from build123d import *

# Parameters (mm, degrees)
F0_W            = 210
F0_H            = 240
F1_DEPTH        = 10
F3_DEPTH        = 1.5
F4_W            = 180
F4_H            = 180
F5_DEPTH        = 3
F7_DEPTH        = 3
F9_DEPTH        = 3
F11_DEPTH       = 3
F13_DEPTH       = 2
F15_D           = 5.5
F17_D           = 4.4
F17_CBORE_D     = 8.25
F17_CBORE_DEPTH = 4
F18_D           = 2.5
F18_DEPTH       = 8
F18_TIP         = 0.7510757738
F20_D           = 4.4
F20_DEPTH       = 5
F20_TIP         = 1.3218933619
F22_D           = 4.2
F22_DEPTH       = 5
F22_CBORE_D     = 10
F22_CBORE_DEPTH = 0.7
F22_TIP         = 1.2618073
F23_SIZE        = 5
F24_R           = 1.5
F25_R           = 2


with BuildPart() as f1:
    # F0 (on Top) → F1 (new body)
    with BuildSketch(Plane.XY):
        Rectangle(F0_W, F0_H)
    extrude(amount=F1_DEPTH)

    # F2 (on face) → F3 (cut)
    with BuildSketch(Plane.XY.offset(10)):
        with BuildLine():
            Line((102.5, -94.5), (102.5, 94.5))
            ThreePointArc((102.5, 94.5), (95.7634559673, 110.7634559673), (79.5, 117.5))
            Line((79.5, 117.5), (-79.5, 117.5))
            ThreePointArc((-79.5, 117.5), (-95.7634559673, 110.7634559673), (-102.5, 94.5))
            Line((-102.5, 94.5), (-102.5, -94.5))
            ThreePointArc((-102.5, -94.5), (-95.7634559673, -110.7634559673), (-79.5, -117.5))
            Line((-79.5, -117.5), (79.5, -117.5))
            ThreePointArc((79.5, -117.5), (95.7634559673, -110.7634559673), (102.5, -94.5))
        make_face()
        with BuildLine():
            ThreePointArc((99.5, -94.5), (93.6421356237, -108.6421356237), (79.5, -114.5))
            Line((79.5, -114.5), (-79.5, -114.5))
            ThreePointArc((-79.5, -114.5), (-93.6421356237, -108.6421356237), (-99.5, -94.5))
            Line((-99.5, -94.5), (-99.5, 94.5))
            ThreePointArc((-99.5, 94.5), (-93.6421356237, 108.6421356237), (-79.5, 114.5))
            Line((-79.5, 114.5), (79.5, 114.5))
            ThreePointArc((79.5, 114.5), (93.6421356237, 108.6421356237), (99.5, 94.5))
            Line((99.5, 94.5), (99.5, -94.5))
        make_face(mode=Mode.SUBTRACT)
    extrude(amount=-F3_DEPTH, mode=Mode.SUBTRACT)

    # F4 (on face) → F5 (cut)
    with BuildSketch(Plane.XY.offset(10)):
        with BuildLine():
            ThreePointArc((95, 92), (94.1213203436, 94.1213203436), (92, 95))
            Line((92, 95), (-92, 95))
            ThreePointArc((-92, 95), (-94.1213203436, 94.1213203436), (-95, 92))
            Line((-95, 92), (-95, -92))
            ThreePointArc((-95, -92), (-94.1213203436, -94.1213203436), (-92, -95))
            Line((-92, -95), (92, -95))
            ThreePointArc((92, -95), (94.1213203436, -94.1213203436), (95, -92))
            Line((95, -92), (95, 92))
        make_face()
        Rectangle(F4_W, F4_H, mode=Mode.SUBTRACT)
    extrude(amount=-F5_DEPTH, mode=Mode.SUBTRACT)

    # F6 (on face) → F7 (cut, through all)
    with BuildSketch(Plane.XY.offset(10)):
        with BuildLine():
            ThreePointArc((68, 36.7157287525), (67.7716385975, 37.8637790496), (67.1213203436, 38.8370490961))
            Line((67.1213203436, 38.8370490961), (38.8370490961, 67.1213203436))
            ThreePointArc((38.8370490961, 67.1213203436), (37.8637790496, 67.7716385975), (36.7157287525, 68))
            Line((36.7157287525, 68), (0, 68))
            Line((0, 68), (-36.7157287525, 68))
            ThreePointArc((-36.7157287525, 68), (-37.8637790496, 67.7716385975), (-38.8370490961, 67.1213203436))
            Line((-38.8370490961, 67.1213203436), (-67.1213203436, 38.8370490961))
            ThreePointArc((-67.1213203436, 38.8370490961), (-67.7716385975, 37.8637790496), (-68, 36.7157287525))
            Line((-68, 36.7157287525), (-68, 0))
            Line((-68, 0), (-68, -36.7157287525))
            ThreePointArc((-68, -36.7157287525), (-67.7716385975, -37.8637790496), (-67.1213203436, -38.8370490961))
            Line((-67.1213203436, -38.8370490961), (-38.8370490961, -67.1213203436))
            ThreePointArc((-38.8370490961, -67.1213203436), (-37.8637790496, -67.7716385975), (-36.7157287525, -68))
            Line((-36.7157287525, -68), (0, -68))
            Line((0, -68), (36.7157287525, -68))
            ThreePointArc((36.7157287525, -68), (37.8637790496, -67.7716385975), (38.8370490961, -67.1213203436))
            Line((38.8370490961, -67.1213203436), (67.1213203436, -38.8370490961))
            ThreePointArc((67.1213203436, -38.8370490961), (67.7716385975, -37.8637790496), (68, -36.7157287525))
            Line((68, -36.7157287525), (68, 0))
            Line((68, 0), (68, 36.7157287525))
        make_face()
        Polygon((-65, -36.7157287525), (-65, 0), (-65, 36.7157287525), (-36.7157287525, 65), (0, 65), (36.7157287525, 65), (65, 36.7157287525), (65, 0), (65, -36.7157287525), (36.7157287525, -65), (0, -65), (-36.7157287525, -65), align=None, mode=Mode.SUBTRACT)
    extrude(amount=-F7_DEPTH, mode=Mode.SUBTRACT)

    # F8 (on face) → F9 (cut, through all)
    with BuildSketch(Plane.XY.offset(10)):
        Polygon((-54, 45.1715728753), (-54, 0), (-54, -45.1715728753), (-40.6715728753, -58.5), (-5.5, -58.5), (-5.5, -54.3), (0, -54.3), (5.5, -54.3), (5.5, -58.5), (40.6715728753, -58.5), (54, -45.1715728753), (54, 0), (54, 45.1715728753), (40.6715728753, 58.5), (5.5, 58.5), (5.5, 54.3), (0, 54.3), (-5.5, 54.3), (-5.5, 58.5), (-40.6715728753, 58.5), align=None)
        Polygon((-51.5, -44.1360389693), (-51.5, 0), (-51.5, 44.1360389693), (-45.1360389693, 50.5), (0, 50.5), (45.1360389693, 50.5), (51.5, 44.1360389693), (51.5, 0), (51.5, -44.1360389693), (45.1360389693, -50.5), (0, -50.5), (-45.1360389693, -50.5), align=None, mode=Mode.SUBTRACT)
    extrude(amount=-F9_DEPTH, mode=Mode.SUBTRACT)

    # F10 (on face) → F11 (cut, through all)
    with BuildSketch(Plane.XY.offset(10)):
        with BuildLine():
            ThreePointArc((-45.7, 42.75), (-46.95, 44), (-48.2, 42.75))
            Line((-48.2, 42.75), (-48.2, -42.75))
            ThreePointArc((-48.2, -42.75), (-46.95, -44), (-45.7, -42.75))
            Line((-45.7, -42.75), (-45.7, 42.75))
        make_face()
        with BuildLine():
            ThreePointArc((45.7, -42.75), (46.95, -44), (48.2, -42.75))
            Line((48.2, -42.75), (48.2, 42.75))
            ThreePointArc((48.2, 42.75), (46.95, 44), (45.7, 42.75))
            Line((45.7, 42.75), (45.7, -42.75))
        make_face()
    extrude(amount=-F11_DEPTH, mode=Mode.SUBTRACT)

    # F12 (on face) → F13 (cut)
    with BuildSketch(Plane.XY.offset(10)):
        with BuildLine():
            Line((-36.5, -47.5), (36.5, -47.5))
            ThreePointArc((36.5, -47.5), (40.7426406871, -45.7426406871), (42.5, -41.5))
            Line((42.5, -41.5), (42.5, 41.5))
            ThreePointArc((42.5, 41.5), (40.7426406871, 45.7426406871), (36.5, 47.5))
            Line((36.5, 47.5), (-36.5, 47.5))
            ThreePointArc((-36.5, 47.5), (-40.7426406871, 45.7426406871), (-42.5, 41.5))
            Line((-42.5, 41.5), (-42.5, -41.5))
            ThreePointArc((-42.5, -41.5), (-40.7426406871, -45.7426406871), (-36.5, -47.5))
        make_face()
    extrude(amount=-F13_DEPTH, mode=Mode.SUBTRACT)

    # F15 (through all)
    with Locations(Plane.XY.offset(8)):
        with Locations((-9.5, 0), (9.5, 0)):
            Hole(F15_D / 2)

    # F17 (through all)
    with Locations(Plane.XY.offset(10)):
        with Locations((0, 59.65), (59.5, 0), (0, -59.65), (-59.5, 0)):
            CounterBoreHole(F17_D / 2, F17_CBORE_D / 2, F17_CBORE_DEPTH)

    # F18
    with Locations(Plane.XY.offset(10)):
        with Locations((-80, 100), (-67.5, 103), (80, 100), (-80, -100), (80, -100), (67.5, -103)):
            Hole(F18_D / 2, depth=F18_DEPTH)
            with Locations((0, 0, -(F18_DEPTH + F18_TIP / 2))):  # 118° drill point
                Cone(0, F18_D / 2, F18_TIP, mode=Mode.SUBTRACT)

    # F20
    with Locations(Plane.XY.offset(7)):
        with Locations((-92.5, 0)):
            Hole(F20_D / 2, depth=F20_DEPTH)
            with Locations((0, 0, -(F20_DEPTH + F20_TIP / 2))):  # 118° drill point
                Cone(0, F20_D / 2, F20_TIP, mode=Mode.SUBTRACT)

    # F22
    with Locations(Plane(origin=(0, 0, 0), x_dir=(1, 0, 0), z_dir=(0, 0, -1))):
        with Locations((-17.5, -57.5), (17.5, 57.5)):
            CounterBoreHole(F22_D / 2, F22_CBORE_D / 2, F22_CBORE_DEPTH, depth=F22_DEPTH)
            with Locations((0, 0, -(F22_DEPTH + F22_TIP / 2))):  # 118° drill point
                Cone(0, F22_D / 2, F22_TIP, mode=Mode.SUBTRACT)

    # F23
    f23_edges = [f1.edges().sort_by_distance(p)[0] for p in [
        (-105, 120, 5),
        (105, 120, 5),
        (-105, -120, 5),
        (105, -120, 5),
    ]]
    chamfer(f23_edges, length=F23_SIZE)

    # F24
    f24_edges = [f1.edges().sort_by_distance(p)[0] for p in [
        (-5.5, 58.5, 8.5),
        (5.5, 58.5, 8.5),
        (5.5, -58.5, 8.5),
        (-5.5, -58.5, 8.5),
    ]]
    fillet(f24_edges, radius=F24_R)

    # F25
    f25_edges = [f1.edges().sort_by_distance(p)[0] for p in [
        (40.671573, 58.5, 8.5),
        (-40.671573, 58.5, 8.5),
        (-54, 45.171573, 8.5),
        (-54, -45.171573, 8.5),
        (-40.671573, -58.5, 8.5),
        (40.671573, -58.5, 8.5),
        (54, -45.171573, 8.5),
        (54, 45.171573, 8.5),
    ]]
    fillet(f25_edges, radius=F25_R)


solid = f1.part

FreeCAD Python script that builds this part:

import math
import FreeCAD as App
import Part
import Sketcher


def edges_at(feature, points):
    """Names of the edges that pass closest to the given points."""
    edges = feature.Shape.Edges
    near = lambda p: min(range(len(edges)), key=lambda i: edges[i].distToShape(Part.Vertex(*p))[0])
    return sorted({f"Edge{near(p) + 1}" for p in points})

doc = App.newDocument("Part")
params = doc.addObject("Spreadsheet::Sheet", "Params")
for row, (alias, value) in enumerate([
    ("sketch1_width", "210 mm"),
    ("sketch1_height", "240 mm"),
    ("pad1_length", "10 mm"),
    ("sketch2_radius", "23 mm"),
    ("sketch2_radius2", "20 mm"),
    ("sketch2_width", "159 mm"),
    ("sketch2_height", "189 mm"),
    ("pocket1_length", "1.5 mm"),
    ("sketch3_radius", "3 mm"),
    ("sketch3_width", "184 mm"),
    ("sketch3_width2", "180 mm"),
    ("pocket2_length", "3 mm"),
    ("sketch4_radius", "3 mm"),
    ("sketch4_length", "40 mm"),
    ("pocket3_length", "3 mm"),
    ("sketch5_width", "11 mm"),
    ("sketch5_length", "9 mm"),
    ("sketch5_height", "4.2 mm"),
    ("pocket4_length", "3 mm"),
    ("sketch6_radius", "1.25 mm"),
    ("sketch6_height", "85.5 mm"),
    ("pocket5_length", "3 mm"),
    ("sketch7_radius", "6 mm"),
    ("sketch7_width", "73 mm"),
    ("sketch7_height", "83 mm"),
    ("pocket6_length", "2 mm"),
    ("sketch8_diameter", "5.5 mm"),
    ("hole_diameter", "5.5 mm"),
    ("sketch9_diameter", "4.4 mm"),
    ("hole2_diameter", "4.4 mm"),
    ("hole2_cbore_diameter", "8.25 mm"),
    ("hole2_cbore_depth", "4 mm"),
    ("sketch10_diameter", "2.5 mm"),
    ("hole3_diameter", "2.5 mm"),
    ("hole3_depth", "8 mm"),
    ("sketch11_diameter", "4.4 mm"),
    ("hole4_diameter", "4.4 mm"),
    ("hole4_depth", "5 mm"),
    ("sketch12_diameter", "4.2 mm"),
    ("hole5_diameter", "4.2 mm"),
    ("hole5_depth", "5 mm"),
    ("hole5_cbore_diameter", "10 mm"),
    ("hole5_cbore_depth", "0.7 mm"),
    ("chamfer_size", "5 mm"),
    ("fillet_radius", "1.5 mm"),
    ("fillet2_radius", "2 mm"),
], start=1):
    params.set(f"A{row}", alias)
    params.set(f"B{row}", "=" + value)
    params.setAlias(f"B{row}", alias)

body = doc.addObject("PartDesign::Body", "Body")

sketch1 = body.newObject("Sketcher::SketchObject", "Sketch")
sketch1.AttachmentSupport = (doc.getObject("XY_Plane"), [""])
sketch1.MapMode = "FlatFace"
sketch1.addGeometry(Part.LineSegment(App.Vector(-105, 120, 0), App.Vector(-105, -120, 0)), False)
sketch1.addGeometry(Part.LineSegment(App.Vector(-105, -120, 0), App.Vector(105, -120, 0)), False)
sketch1.addGeometry(Part.LineSegment(App.Vector(105, -120, 0), App.Vector(105, 120, 0)), False)
sketch1.addGeometry(Part.LineSegment(App.Vector(105, 120, 0), App.Vector(-105, 120, 0)), False)
sketch1.addConstraint(Sketcher.Constraint("Coincident", 0, 2, 1, 1))
sketch1.addConstraint(Sketcher.Constraint("Coincident", 1, 2, 2, 1))
sketch1.addConstraint(Sketcher.Constraint("Coincident", 2, 2, 3, 1))
sketch1.addConstraint(Sketcher.Constraint("Coincident", 3, 2, 0, 1))
sketch1.addConstraint(Sketcher.Constraint("Vertical", 0))
sketch1.addConstraint(Sketcher.Constraint("Horizontal", 1))
sketch1.addConstraint(Sketcher.Constraint("Vertical", 2))
sketch1.addConstraint(Sketcher.Constraint("Horizontal", 3))
sketch1.addConstraint(Sketcher.Constraint("Symmetric", 0, 2, 2, 2, -1, 1))
sketch1.addConstraint(Sketcher.Constraint("DistanceX", 1, 1, 1, 2, 210.0))
sketch1.addConstraint(Sketcher.Constraint("DistanceY", 0, 2, 0, 1, 240.0))
sketch1.setExpression("Constraints[9]", "Params.sketch1_width")
sketch1.setExpression("Constraints[10]", "Params.sketch1_height")
pad1 = body.newObject("PartDesign::Pad", "Pad")
pad1.Profile = sketch1
pad1.setExpression("Length", "Params.pad1_length")

sketch2 = body.newObject("Sketcher::SketchObject", "Sketch001")
sketch2.AttachmentSupport = (doc.getObject("XY_Plane"), [""])
sketch2.MapMode = "FlatFace"
sketch2.AttachmentOffset = App.Placement(App.Vector(0, 0, 10), App.Rotation())
sketch2.addGeometry(Part.LineSegment(App.Vector(102, -94, 0), App.Vector(102, 94, 0)), False)
sketch2.addGeometry(Part.ArcOfCircle(Part.Circle(App.Vector(80, 94, 0), App.Vector(0, 0, 1), 23), math.radians(0), math.radians(90)), False)
sketch2.addGeometry(Part.LineSegment(App.Vector(80, 118, 0), App.Vector(-80, 118, 0)), False)
sketch2.addGeometry(Part.ArcOfCircle(Part.Circle(App.Vector(-80, 94, 0), App.Vector(0, 0, 1), 23), math.radians(90), math.radians(180)), False)
sketch2.addGeometry(Part.LineSegment(App.Vector(-102, 94, 0), App.Vector(-102, -94, 0)), False)
sketch2.addGeometry(Part.ArcOfCircle(Part.Circle(App.Vector(-80, -94, 0), App.Vector(0, 0, 1), 23), math.radians(180), math.radians(270)), False)
sketch2.addGeometry(Part.LineSegment(App.Vector(-80, -118, 0), App.Vector(80, -118, 0)), False)
sketch2.addGeometry(Part.ArcOfCircle(Part.Circle(App.Vector(80, -94, 0), App.Vector(0, 0, 1), 23), math.radians(-90), math.radians(0)), False)
sketch2.addGeometry(Part.LineSegment(App.Vector(100, 94, 0), App.Vector(100, -94, 0)), False)
sketch2.addGeometry(Part.ArcOfCircle(Part.Circle(App.Vector(80, -94, 0), App.Vector(0, 0, 1), 20), math.radians(-90), math.radians(0)), False)
sketch2.addGeometry(Part.LineSegment(App.Vector(80, -114, 0), App.Vector(-80, -114, 0)), False)
sketch2.addGeometry(Part.ArcOfCircle(Part.Circle(App.Vector(-80, -94, 0), App.Vector(0, 0, 1), 20), math.radians(180), math.radians(270)), False)
sketch2.addGeometry(Part.LineSegment(App.Vector(-100, -94, 0), App.Vector(-100, 94, 0)), False)
sketch2.addGeometry(Part.ArcOfCircle(Part.Circle(App.Vector(-80, 94, 0), App.Vector(0, 0, 1), 20), math.radians(90), math.radians(180)), False)
sketch2.addGeometry(Part.LineSegment(App.Vector(-80, 114, 0), App.Vector(80, 114, 0)), False)
sketch2.addGeometry(Part.ArcOfCircle(Part.Circle(App.Vector(80, 94, 0), App.Vector(0, 0, 1), 20), math.radians(0), math.radians(90)), False)
sketch2.addConstraint(Sketcher.Constraint("Tangent", 0, 2, 1, 1))
sketch2.addConstraint(Sketcher.Constraint("Tangent", 1, 2, 2, 1))
sketch2.addConstraint(Sketcher.Constraint("Tangent", 2, 2, 3, 1))
sketch2.addConstraint(Sketcher.Constraint("Tangent", 3, 2, 4, 1))
sketch2.addConstraint(Sketcher.Constraint("Tangent", 4, 2, 5, 1))
sketch2.addConstraint(Sketcher.Constraint("Tangent", 5, 2, 6, 1))
sketch2.addConstraint(Sketcher.Constraint("Tangent", 6, 2, 7, 1))
sketch2.addConstraint(Sketcher.Constraint("Tangent", 7, 2, 0, 1))
sketch2.addConstraint(Sketcher.Constraint("Tangent", 8, 2, 9, 2))
sketch2.addConstraint(Sketcher.Constraint("Tangent", 9, 1, 10, 1))
sketch2.addConstraint(Sketcher.Constraint("Tangent", 10, 2, 11, 2))
sketch2.addConstraint(Sketcher.Constraint("Tangent", 11, 1, 12, 1))
sketch2.addConstraint(Sketcher.Constraint("Tangent", 12, 2, 13, 2))
sketch2.addConstraint(Sketcher.Constraint("Tangent", 13, 1, 14, 1))
sketch2.addConstraint(Sketcher.Constraint("Tangent", 14, 2, 15, 2))
sketch2.addConstraint(Sketcher.Constraint("Tangent", 15, 1, 8, 1))
sketch2.addConstraint(Sketcher.Constraint("Vertical", 0))
sketch2.addConstraint(Sketcher.Constraint("Horizontal", 2))
sketch2.addConstraint(Sketcher.Constraint("Vertical", 4))
sketch2.addConstraint(Sketcher.Constraint("Horizontal", 6))
sketch2.addConstraint(Sketcher.Constraint("Vertical", 8))
sketch2.addConstraint(Sketcher.Constraint("Horizontal", 10))
sketch2.addConstraint(Sketcher.Constraint("Vertical", 12))
sketch2.addConstraint(Sketcher.Constraint("Horizontal", 14))
sketch2.addConstraint(Sketcher.Constraint("Coincident", 9, 3, 7, 3))
sketch2.addConstraint(Sketcher.Constraint("Coincident", 11, 3, 5, 3))
sketch2.addConstraint(Sketcher.Constraint("Coincident", 13, 3, 3, 3))
sketch2.addConstraint(Sketcher.Constraint("Equal", 1, 3))
sketch2.addConstraint(Sketcher.Constraint("Equal", 3, 5))
sketch2.addConstraint(Sketcher.Constraint("Equal", 5, 7))
sketch2.addConstraint(Sketcher.Constraint("Equal", 13, 15))
sketch2.addConstraint(Sketcher.Constraint("Symmetric", 1, 3, 5, 3, -1, 1))
sketch2.addConstraint(Sketcher.Constraint("Radius", 1, 23.0))
sketch2.addConstraint(Sketcher.Constraint("Radius", 9, 20.0))
sketch2.addConstraint(Sketcher.Constraint("DistanceX", 2, 2, 2, 1, 159.0))
sketch2.addConstraint(Sketcher.Constraint("DistanceY", 0, 1, 0, 2, 189.0))
sketch2.setExpression("Constraints[32]", "Params.sketch2_radius")
sketch2.setExpression("Constraints[33]", "Params.sketch2_radius2")
sketch2.setExpression("Constraints[34]", "Params.sketch2_width")
sketch2.setExpression("Constraints[35]", "Params.sketch2_height")
pocket1 = body.newObject("PartDesign::Pocket", "Pocket")
pocket1.Profile = sketch2
pocket1.setExpression("Length", "Params.pocket1_length")

sketch3 = body.newObject("Sketcher::SketchObject", "Sketch002")
sketch3.AttachmentSupport = (doc.getObject("XY_Plane"), [""])
sketch3.MapMode = "FlatFace"
sketch3.AttachmentOffset = App.Placement(App.Vector(0, 0, 10), App.Rotation())
sketch3.addGeometry(Part.ArcOfCircle(Part.Circle(App.Vector(92, 92, 0), App.Vector(0, 0, 1), 3), math.radians(0), math.radians(90)), False)
sketch3.addGeometry(Part.LineSegment(App.Vector(92, 95, 0), App.Vector(-92, 95, 0)), False)
sketch3.addGeometry(Part.ArcOfCircle(Part.Circle(App.Vector(-92, 92, 0), App.Vector(0, 0, 1), 3), math.radians(90), math.radians(180)), False)
sketch3.addGeometry(Part.LineSegment(App.Vector(-95, 92, 0), App.Vector(-95, -92, 0)), False)
sketch3.addGeometry(Part.ArcOfCircle(Part.Circle(App.Vector(-92, -92, 0), App.Vector(0, 0, 1), 3), math.radians(180), math.radians(270)), False)
sketch3.addGeometry(Part.LineSegment(App.Vector(-92, -95, 0), App.Vector(92, -95, 0)), False)
sketch3.addGeometry(Part.ArcOfCircle(Part.Circle(App.Vector(92, -92, 0), App.Vector(0, 0, 1), 3), math.radians(-90), math.radians(0)), False)
sketch3.addGeometry(Part.LineSegment(App.Vector(95, -92, 0), App.Vector(95, 92, 0)), False)
sketch3.addGeometry(Part.LineSegment(App.Vector(90, -90, 0), App.Vector(-90, -90, 0)), False)
sketch3.addGeometry(Part.LineSegment(App.Vector(-90, -90, 0), App.Vector(-90, 90, 0)), False)
sketch3.addGeometry(Part.LineSegment(App.Vector(-90, 90, 0), App.Vector(90, 90, 0)), False)
sketch3.addGeometry(Part.LineSegment(App.Vector(90, 90, 0), App.Vector(90, -90, 0)), False)
sketch3.addConstraint(Sketcher.Constraint("Tangent", 0, 2, 1, 1))
sketch3.addConstraint(Sketcher.Constraint("Tangent", 1, 2, 2, 1))
sketch3.addConstraint(Sketcher.Constraint("Tangent", 2, 2, 3, 1))
sketch3.addConstraint(Sketcher.Constraint("Tangent", 3, 2, 4, 1))
sketch3.addConstraint(Sketcher.Constraint("Tangent", 4, 2, 5, 1))
sketch3.addConstraint(Sketcher.Constraint("Tangent", 5, 2, 6, 1))
sketch3.addConstraint(Sketcher.Constraint("Tangent", 6, 2, 7, 1))
sketch3.addConstraint(Sketcher.Constraint("Tangent", 7, 2, 0, 1))
sketch3.addConstraint(Sketcher.Constraint("Coincident", 8, 2, 9, 1))
sketch3.addConstraint(Sketcher.Constraint("Coincident", 9, 2, 10, 1))
sketch3.addConstraint(Sketcher.Constraint("Coincident", 10, 2, 11, 1))
sketch3.addConstraint(Sketcher.Constraint("Coincident", 11, 2, 8, 1))
sketch3.addConstraint(Sketcher.Constraint("Horizontal", 1))
sketch3.addConstraint(Sketcher.Constraint("Vertical", 3))
sketch3.addConstraint(Sketcher.Constraint("Horizontal", 5))
sketch3.addConstraint(Sketcher.Constraint("Vertical", 7))
sketch3.addConstraint(Sketcher.Constraint("Horizontal", 8))
sketch3.addConstraint(Sketcher.Constraint("Vertical", 9))
sketch3.addConstraint(Sketcher.Constraint("Horizontal", 10))
sketch3.addConstraint(Sketcher.Constraint("Vertical", 11))
sketch3.addConstraint(Sketcher.Constraint("Equal", 0, 2))
sketch3.addConstraint(Sketcher.Constraint("Equal", 2, 4))
sketch3.addConstraint(Sketcher.Constraint("Equal", 4, 6))
sketch3.addConstraint(Sketcher.Constraint("Symmetric", 0, 3, 4, 3, -1, 1))
sketch3.addConstraint(Sketcher.Constraint("Symmetric", 8, 2, 10, 2, -1, 1))
sketch3.addConstraint(Sketcher.Constraint("Equal", 5, 3))
sketch3.addConstraint(Sketcher.Constraint("Equal", 10, 9))
sketch3.addConstraint(Sketcher.Constraint("Radius", 0, 3.0))
sketch3.addConstraint(Sketcher.Constraint("DistanceX", 1, 2, 1, 1, 184.0))
sketch3.addConstraint(Sketcher.Constraint("DistanceX", 8, 2, 8, 1, 180.0))
sketch3.setExpression("Constraints[27]", "Params.sketch3_radius")
sketch3.setExpression("Constraints[28]", "Params.sketch3_width")
sketch3.setExpression("Constraints[29]", "Params.sketch3_width2")
pocket2 = body.newObject("PartDesign::Pocket", "Pocket001")
pocket2.Profile = sketch3
pocket2.setExpression("Length", "Params.pocket2_length")

sketch4 = body.newObject("Sketcher::SketchObject", "Sketch003")
sketch4.AttachmentSupport = (doc.getObject("XY_Plane"), [""])
sketch4.MapMode = "FlatFace"
sketch4.AttachmentOffset = App.Placement(App.Vector(0, 0, 10), App.Rotation())
sketch4.addGeometry(Part.ArcOfCircle(Part.Circle(App.Vector(65, 36.7, 0), App.Vector(0, 0, 1), 3), math.radians(0), math.radians(45)), False)
sketch4.addGeometry(Part.LineSegment(App.Vector(67.1, 38.8, 0), App.Vector(38.8, 67.1, 0)), False)
sketch4.addGeometry(Part.ArcOfCircle(Part.Circle(App.Vector(36.7, 65, 0), App.Vector(0, 0, 1), 3), math.radians(45), math.radians(90)), False)
sketch4.addGeometry(Part.LineSegment(App.Vector(36.7, 68, 0), App.Vector(-36.7, 68, 0)), False)
sketch4.addGeometry(Part.ArcOfCircle(Part.Circle(App.Vector(-36.7, 65, 0), App.Vector(0, 0, 1), 3), math.radians(90), math.radians(135)), False)
sketch4.addGeometry(Part.LineSegment(App.Vector(-38.8, 67.1, 0), App.Vector(-67.1, 38.8, 0)), False)
sketch4.addGeometry(Part.ArcOfCircle(Part.Circle(App.Vector(-65, 36.7, 0), App.Vector(0, 0, 1), 3), math.radians(135), math.radians(180)), False)
sketch4.addGeometry(Part.LineSegment(App.Vector(-68, 36.7, 0), App.Vector(-68, -36.7, 0)), False)
sketch4.addGeometry(Part.ArcOfCircle(Part.Circle(App.Vector(-65, -36.7, 0), App.Vector(0, 0, 1), 3), math.radians(180), math.radians(225)), False)
sketch4.addGeometry(Part.LineSegment(App.Vector(-67.1, -38.8, 0), App.Vector(-38.8, -67.1, 0)), False)
sketch4.addGeometry(Part.ArcOfCircle(Part.Circle(App.Vector(-36.7, -65, 0), App.Vector(0, 0, 1), 3), math.radians(-135), math.radians(-90)), False)
sketch4.addGeometry(Part.LineSegment(App.Vector(-36.7, -68, 0), App.Vector(36.7, -68, 0)), False)
sketch4.addGeometry(Part.ArcOfCircle(Part.Circle(App.Vector(36.7, -65, 0), App.Vector(0, 0, 1), 3), math.radians(-90), math.radians(-45)), False)
sketch4.addGeometry(Part.LineSegment(App.Vector(38.8, -67.1, 0), App.Vector(67.1, -38.8, 0)), False)
sketch4.addGeometry(Part.ArcOfCircle(Part.Circle(App.Vector(65, -36.7, 0), App.Vector(0, 0, 1), 3), math.radians(-45), math.radians(0)), False)
sketch4.addGeometry(Part.LineSegment(App.Vector(68, -36.7, 0), App.Vector(68, 36.7, 0)), False)
sketch4.addGeometry(Part.LineSegment(App.Vector(-36.7, -65, 0), App.Vector(-65, -36.7, 0)), False)
sketch4.addGeometry(Part.LineSegment(App.Vector(-65, -36.7, 0), App.Vector(-65, 36.7, 0)), False)
sketch4.addGeometry(Part.LineSegment(App.Vector(-65, 36.7, 0), App.Vector(-36.7, 65, 0)), False)
sketch4.addGeometry(Part.LineSegment(App.Vector(-36.7, 65, 0), App.Vector(36.7, 65, 0)), False)
sketch4.addGeometry(Part.LineSegment(App.Vector(36.7, 65, 0), App.Vector(65, 36.7, 0)), False)
sketch4.addGeometry(Part.LineSegment(App.Vector(65, 36.7, 0), App.Vector(65, -36.7, 0)), False)
sketch4.addGeometry(Part.LineSegment(App.Vector(65, -36.7, 0), App.Vector(36.7, -65, 0)), False)
sketch4.addGeometry(Part.LineSegment(App.Vector(36.7, -65, 0), App.Vector(-36.7, -65, 0)), False)
sketch4.addConstraint(Sketcher.Constraint("Tangent", 0, 2, 1, 1))
sketch4.addConstraint(Sketcher.Constraint("Tangent", 1, 2, 2, 1))
sketch4.addConstraint(Sketcher.Constraint("Tangent", 2, 2, 3, 1))
sketch4.addConstraint(Sketcher.Constraint("Tangent", 3, 2, 4, 1))
sketch4.addConstraint(Sketcher.Constraint("Tangent", 4, 2, 5, 1))
sketch4.addConstraint(Sketcher.Constraint("Tangent", 5, 2, 6, 1))
sketch4.addConstraint(Sketcher.Constraint("Tangent", 6, 2, 7, 1))
sketch4.addConstraint(Sketcher.Constraint("Tangent", 7, 2, 8, 1))
sketch4.addConstraint(Sketcher.Constraint("Tangent", 8, 2, 9, 1))
sketch4.addConstraint(Sketcher.Constraint("Tangent", 9, 2, 10, 1))
sketch4.addConstraint(Sketcher.Constraint("Tangent", 10, 2, 11, 1))
sketch4.addConstraint(Sketcher.Constraint("Tangent", 11, 2, 12, 1))
sketch4.addConstraint(Sketcher.Constraint("Tangent", 12, 2, 13, 1))
sketch4.addConstraint(Sketcher.Constraint("Tangent", 13, 2, 14, 1))
sketch4.addConstraint(Sketcher.Constraint("Tangent", 14, 2, 15, 1))
sketch4.addConstraint(Sketcher.Constraint("Tangent", 15, 2, 0, 1))
sketch4.addConstraint(Sketcher.Constraint("Coincident", 16, 2, 17, 1))
sketch4.addConstraint(Sketcher.Constraint("Coincident", 17, 2, 18, 1))
sketch4.addConstraint(Sketcher.Constraint("Coincident", 18, 2, 19, 1))
sketch4.addConstraint(Sketcher.Constraint("Coincident", 19, 2, 20, 1))
sketch4.addConstraint(Sketcher.Constraint("Coincident", 20, 2, 21, 1))
sketch4.addConstraint(Sketcher.Constraint("Coincident", 21, 2, 22, 1))
sketch4.addConstraint(Sketcher.Constraint("Coincident", 22, 2, 23, 1))
sketch4.addConstraint(Sketcher.Constraint("Coincident", 23, 2, 16, 1))
sketch4.addConstraint(Sketcher.Constraint("Horizontal", 3))
sketch4.addConstraint(Sketcher.Constraint("Vertical", 7))
sketch4.addConstraint(Sketcher.Constraint("Horizontal", 11))
sketch4.addConstraint(Sketcher.Constraint("Vertical", 15))
sketch4.addConstraint(Sketcher.Constraint("Vertical", 17))
sketch4.addConstraint(Sketcher.Constraint("Horizontal", 19))
sketch4.addConstraint(Sketcher.Constraint("Vertical", 21))
sketch4.addConstraint(Sketcher.Constraint("Horizontal", 23))
sketch4.addConstraint(Sketcher.Constraint("Coincident", 16, 2, 8, 3))
sketch4.addConstraint(Sketcher.Constraint("Coincident", 17, 2, 6, 3))
sketch4.addConstraint(Sketcher.Constraint("Coincident", 18, 2, 4, 3))
sketch4.addConstraint(Sketcher.Constraint("Coincident", 19, 2, 2, 3))
sketch4.addConstraint(Sketcher.Constraint("Coincident", 20, 2, 0, 3))
sketch4.addConstraint(Sketcher.Constraint("Coincident", 21, 2, 14, 3))
sketch4.addConstraint(Sketcher.Constraint("Coincident", 22, 2, 12, 3))
sketch4.addConstraint(Sketcher.Constraint("Coincident", 23, 2, 10, 3))
sketch4.addConstraint(Sketcher.Constraint("Equal", 0, 2))
sketch4.addConstraint(Sketcher.Constraint("Equal", 4, 6))
sketch4.addConstraint(Sketcher.Constraint("Equal", 8, 10))
sketch4.addConstraint(Sketcher.Constraint("Symmetric", 0, 3, 8, 3, -1, 1))
sketch4.addConstraint(Sketcher.Constraint("Symmetric", 2, 3, 10, 3, -1, 1))
sketch4.addConstraint(Sketcher.Constraint("Symmetric", 4, 2, 12, 2, -1, 1))
sketch4.addConstraint(Sketcher.Constraint("Symmetric", 1, 2, 4, 2, -2))
sketch4.addConstraint(Sketcher.Constraint("Perpendicular", 1, 5))
sketch4.addConstraint(Sketcher.Constraint("Equal", 23, 7))
sketch4.addConstraint(Sketcher.Constraint("Radius", 0, 3.0))
sketch4.addConstraint(Sketcher.Constraint("Distance", 1, 40.0))
sketch4.addConstraint(Sketcher.Constraint("DistanceX", -1, 1, 0, 3, 65.0))
sketch4.setExpression("Constraints[49]", "Params.sketch4_radius")
sketch4.setExpression("Constraints[50]", "Params.sketch4_length")
pocket3 = body.newObject("PartDesign::Pocket", "Pocket002")
pocket3.Profile = sketch4
pocket3.setExpression("Length", "Params.pocket3_length")

sketch5 = body.newObject("Sketcher::SketchObject", "Sketch004")
sketch5.AttachmentSupport = (doc.getObject("XY_Plane"), [""])
sketch5.MapMode = "FlatFace"
sketch5.AttachmentOffset = App.Placement(App.Vector(0, 0, 10), App.Rotation())
sketch5.addGeometry(Part.LineSegment(App.Vector(-54, 45.2, 0), App.Vector(-54, -45.2, 0)), False)
sketch5.addGeometry(Part.LineSegment(App.Vector(-54, -45.2, 0), App.Vector(-40.7, -58.5, 0)), False)
sketch5.addGeometry(Part.LineSegment(App.Vector(-40.7, -58.5, 0), App.Vector(-5.5, -58.5, 0)), False)
sketch5.addGeometry(Part.LineSegment(App.Vector(-5.5, -58.5, 0), App.Vector(-5.5, -54.3, 0)), False)
sketch5.addGeometry(Part.LineSegment(App.Vector(-5.5, -54.3, 0), App.Vector(5.5, -54.3, 0)), False)
sketch5.addGeometry(Part.LineSegment(App.Vector(5.5, -54.3, 0), App.Vector(5.5, -58.5, 0)), False)
sketch5.addGeometry(Part.LineSegment(App.Vector(5.5, -58.5, 0), App.Vector(40.7, -58.5, 0)), False)
sketch5.addGeometry(Part.LineSegment(App.Vector(40.7, -58.5, 0), App.Vector(54, -45.2, 0)), False)
sketch5.addGeometry(Part.LineSegment(App.Vector(54, -45.2, 0), App.Vector(54, 45.2, 0)), False)
sketch5.addGeometry(Part.LineSegment(App.Vector(54, 45.2, 0), App.Vector(40.7, 58.5, 0)), False)
sketch5.addGeometry(Part.LineSegment(App.Vector(40.7, 58.5, 0), App.Vector(5.5, 58.5, 0)), False)
sketch5.addGeometry(Part.LineSegment(App.Vector(5.5, 58.5, 0), App.Vector(5.5, 54.3, 0)), False)
sketch5.addGeometry(Part.LineSegment(App.Vector(5.5, 54.3, 0), App.Vector(-5.5, 54.3, 0)), False)
sketch5.addGeometry(Part.LineSegment(App.Vector(-5.5, 54.3, 0), App.Vector(-5.5, 58.5, 0)), False)
sketch5.addGeometry(Part.LineSegment(App.Vector(-5.5, 58.5, 0), App.Vector(-40.7, 58.5, 0)), False)
sketch5.addGeometry(Part.LineSegment(App.Vector(-40.7, 58.5, 0), App.Vector(-54, 45.2, 0)), False)
sketch5.addGeometry(Part.LineSegment(App.Vector(-45.1, -50.5, 0), App.Vector(-51.5, -44.1, 0)), False)
sketch5.addGeometry(Part.LineSegment(App.Vector(-51.5, -44.1, 0), App.Vector(-51.5, 44.1, 0)), False)
sketch5.addGeometry(Part.LineSegment(App.Vector(-51.5, 44.1, 0), App.Vector(-45.1, 50.5, 0)), False)
sketch5.addGeometry(Part.LineSegment(App.Vector(-45.1, 50.5, 0), App.Vector(45.1, 50.5, 0)), False)
sketch5.addGeometry(Part.LineSegment(App.Vector(45.1, 50.5, 0), App.Vector(51.5, 44.1, 0)), False)
sketch5.addGeometry(Part.LineSegment(App.Vector(51.5, 44.1, 0), App.Vector(51.5, -44.1, 0)), False)
sketch5.addGeometry(Part.LineSegment(App.Vector(51.5, -44.1, 0), App.Vector(45.1, -50.5, 0)), False)
sketch5.addGeometry(Part.LineSegment(App.Vector(45.1, -50.5, 0), App.Vector(-45.1, -50.5, 0)), False)
sketch5.addConstraint(Sketcher.Constraint("Coincident", 0, 2, 1, 1))
sketch5.addConstraint(Sketcher.Constraint("Coincident", 1, 2, 2, 1))
sketch5.addConstraint(Sketcher.Constraint("Coincident", 2, 2, 3, 1))
sketch5.addConstraint(Sketcher.Constraint("Coincident", 3, 2, 4, 1))
sketch5.addConstraint(Sketcher.Constraint("Coincident", 4, 2, 5, 1))
sketch5.addConstraint(Sketcher.Constraint("Coincident", 5, 2, 6, 1))
sketch5.addConstraint(Sketcher.Constraint("Coincident", 6, 2, 7, 1))
sketch5.addConstraint(Sketcher.Constraint("Coincident", 7, 2, 8, 1))
sketch5.addConstraint(Sketcher.Constraint("Coincident", 8, 2, 9, 1))
sketch5.addConstraint(Sketcher.Constraint("Coincident", 9, 2, 10, 1))
sketch5.addConstraint(Sketcher.Constraint("Coincident", 10, 2, 11, 1))
sketch5.addConstraint(Sketcher.Constraint("Coincident", 11, 2, 12, 1))
sketch5.addConstraint(Sketcher.Constraint("Coincident", 12, 2, 13, 1))
sketch5.addConstraint(Sketcher.Constraint("Coincident", 13, 2, 14, 1))
sketch5.addConstraint(Sketcher.Constraint("Coincident", 14, 2, 15, 1))
sketch5.addConstraint(Sketcher.Constraint("Coincident", 15, 2, 0, 1))
sketch5.addConstraint(Sketcher.Constraint("Coincident", 16, 2, 17, 1))
sketch5.addConstraint(Sketcher.Constraint("Coincident", 17, 2, 18, 1))
sketch5.addConstraint(Sketcher.Constraint("Coincident", 18, 2, 19, 1))
sketch5.addConstraint(Sketcher.Constraint("Coincident", 19, 2, 20, 1))
sketch5.addConstraint(Sketcher.Constraint("Coincident", 20, 2, 21, 1))
sketch5.addConstraint(Sketcher.Constraint("Coincident", 21, 2, 22, 1))
sketch5.addConstraint(Sketcher.Constraint("Coincident", 22, 2, 23, 1))
sketch5.addConstraint(Sketcher.Constraint("Coincident", 23, 2, 16, 1))
sketch5.addConstraint(Sketcher.Constraint("Vertical", 0))
sketch5.addConstraint(Sketcher.Constraint("Horizontal", 2))
sketch5.addConstraint(Sketcher.Constraint("Vertical", 3))
sketch5.addConstraint(Sketcher.Constraint("Horizontal", 4))
sketch5.addConstraint(Sketcher.Constraint("Vertical", 5))
sketch5.addConstraint(Sketcher.Constraint("Horizontal", 6))
sketch5.addConstraint(Sketcher.Constraint("Vertical", 8))
sketch5.addConstraint(Sketcher.Constraint("Horizontal", 10))
sketch5.addConstraint(Sketcher.Constraint("Vertical", 11))
sketch5.addConstraint(Sketcher.Constraint("Horizontal", 12))
sketch5.addConstraint(Sketcher.Constraint("Vertical", 13))
sketch5.addConstraint(Sketcher.Constraint("Horizontal", 14))
sketch5.addConstraint(Sketcher.Constraint("Vertical", 17))
sketch5.addConstraint(Sketcher.Constraint("Horizontal", 19))
sketch5.addConstraint(Sketcher.Constraint("Vertical", 21))
sketch5.addConstraint(Sketcher.Constraint("Horizontal", 23))
sketch5.addConstraint(Sketcher.Constraint("Symmetric", 0, 2, 8, 2, -1, 1))
sketch5.addConstraint(Sketcher.Constraint("Symmetric", 1, 2, 9, 2, -1, 1))
sketch5.addConstraint(Sketcher.Constraint("Symmetric", 3, 2, 11, 2, -1, 1))
sketch5.addConstraint(Sketcher.Constraint("Symmetric", 5, 2, 13, 2, -1, 1))
sketch5.addConstraint(Sketcher.Constraint("Symmetric", 16, 2, 20, 2, -1, 1))
sketch5.addConstraint(Sketcher.Constraint("Symmetric", 18, 2, 22, 2, -1, 1))
sketch5.addConstraint(Sketcher.Constraint("Symmetric", 2, 2, 5, 2, -2))
sketch5.addConstraint(Sketcher.Constraint("Perpendicular", 1, 7))
sketch5.addConstraint(Sketcher.Constraint("Perpendicular", 9, 15))
sketch5.addConstraint(Sketcher.Constraint("Perpendicular", 15, 16))
sketch5.addConstraint(Sketcher.Constraint("Perpendicular", 16, 18))
sketch5.addConstraint(Sketcher.Constraint("Perpendicular", 18, 20))
sketch5.addConstraint(Sketcher.Constraint("Perpendicular", 20, 22))
sketch5.addConstraint(Sketcher.Constraint("Horizontal", 0, 2, 7, 2))
sketch5.addConstraint(Sketcher.Constraint("Horizontal", 8, 2, 15, 2))
sketch5.addConstraint(Sketcher.Constraint("Horizontal", 17, 2, 20, 2))
sketch5.addConstraint(Sketcher.Constraint("Vertical", 6, 2, 9, 2))
sketch5.addConstraint(Sketcher.Constraint("DistanceX", 4, 1, 4, 2, 11.0))
sketch5.addConstraint(Sketcher.Constraint("Distance", 16, 9.0))
sketch5.addConstraint(Sketcher.Constraint("DistanceY", 3, 1, 3, 2, 4.2))
sketch5.addConstraint(Sketcher.Constraint("DistanceX", 0, 2, -1, 1, 54.0))
sketch5.addConstraint(Sketcher.Constraint("DistanceY", 6, 2, 9, 2, 117.0))
sketch5.addConstraint(Sketcher.Constraint("DistanceX", 16, 2, 3, 2, 46.0))
sketch5.addConstraint(Sketcher.Constraint("DistanceY", 18, 2, 14, 2, 8.0))
sketch5.addConstraint(Sketcher.Constraint("DistanceX", 2, 1, 2, 2, 35.171573))
sketch5.setExpression("Constraints[57]", "Params.sketch5_width")
sketch5.setExpression("Constraints[58]", "Params.sketch5_length")
sketch5.setExpression("Constraints[59]", "Params.sketch5_height")
pocket4 = body.newObject("PartDesign::Pocket", "Pocket003")
pocket4.Profile = sketch5
pocket4.setExpression("Length", "Params.pocket4_length")

sketch6 = body.newObject("Sketcher::SketchObject", "Sketch005")
sketch6.AttachmentSupport = (doc.getObject("XY_Plane"), [""])
sketch6.MapMode = "FlatFace"
sketch6.AttachmentOffset = App.Placement(App.Vector(0, 0, 10), App.Rotation())
sketch6.addGeometry(Part.ArcOfCircle(Part.Circle(App.Vector(-47, 42.8, 0), App.Vector(0, 0, 1), 1.2), math.radians(0), math.radians(180)), False)
sketch6.addGeometry(Part.LineSegment(App.Vector(-48.2, 42.8, 0), App.Vector(-48.2, -42.8, 0)), False)
sketch6.addGeometry(Part.ArcOfCircle(Part.Circle(App.Vector(-47, -42.8, 0), App.Vector(0, 0, 1), 1.2), math.radians(180), math.radians(360)), False)
sketch6.addGeometry(Part.LineSegment(App.Vector(-45.7, -42.8, 0), App.Vector(-45.7, 42.8, 0)), False)
sketch6.addGeometry(Part.ArcOfCircle(Part.Circle(App.Vector(47, -42.8, 0), App.Vector(0, 0, 1), 1.2), math.radians(180), math.radians(360)), False)
sketch6.addGeometry(Part.LineSegment(App.Vector(48.2, -42.8, 0), App.Vector(48.2, 42.8, 0)), False)
sketch6.addGeometry(Part.ArcOfCircle(Part.Circle(App.Vector(47, 42.8, 0), App.Vector(0, 0, 1), 1.2), math.radians(0), math.radians(180)), False)
sketch6.addGeometry(Part.LineSegment(App.Vector(45.7, 42.8, 0), App.Vector(45.7, -42.8, 0)), False)
sketch6.addConstraint(Sketcher.Constraint("Tangent", 0, 2, 1, 1))
sketch6.addConstraint(Sketcher.Constraint("Tangent", 1, 2, 2, 1))
sketch6.addConstraint(Sketcher.Constraint("Tangent", 2, 2, 3, 1))
sketch6.addConstraint(Sketcher.Constraint("Tangent", 3, 2, 0, 1))
sketch6.addConstraint(Sketcher.Constraint("Tangent", 4, 2, 5, 1))
sketch6.addConstraint(Sketcher.Constraint("Tangent", 5, 2, 6, 1))
sketch6.addConstraint(Sketcher.Constraint("Tangent", 6, 2, 7, 1))
sketch6.addConstraint(Sketcher.Constraint("Tangent", 7, 2, 4, 1))
sketch6.addConstraint(Sketcher.Constraint("Vertical", 1))
sketch6.addConstraint(Sketcher.Constraint("Vertical", 3))
sketch6.addConstraint(Sketcher.Constraint("Vertical", 5))
sketch6.addConstraint(Sketcher.Constraint("Vertical", 7))
sketch6.addConstraint(Sketcher.Constraint("Equal", 2, 4))
sketch6.addConstraint(Sketcher.Constraint("Symmetric", 0, 3, 4, 3, -1, 1))
sketch6.addConstraint(Sketcher.Constraint("Horizontal", 2, 3, 4, 3))
sketch6.addConstraint(Sketcher.Constraint("Horizontal", 0, 3, 6, 3))
sketch6.addConstraint(Sketcher.Constraint("Radius", 0, 1.25))
sketch6.addConstraint(Sketcher.Constraint("DistanceY", 1, 2, 1, 1, 85.5))
sketch6.addConstraint(Sketcher.Constraint("DistanceX", 0, 2, -1, 1, 48.2))
sketch6.setExpression("Constraints[16]", "Params.sketch6_radius")
sketch6.setExpression("Constraints[17]", "Params.sketch6_height")
pocket5 = body.newObject("PartDesign::Pocket", "Pocket004")
pocket5.Profile = sketch6
pocket5.setExpression("Length", "Params.pocket5_length")

sketch7 = body.newObject("Sketcher::SketchObject", "Sketch006")
sketch7.AttachmentSupport = (doc.getObject("XY_Plane"), [""])
sketch7.MapMode = "FlatFace"
sketch7.AttachmentOffset = App.Placement(App.Vector(0, 0, 10), App.Rotation())
sketch7.addGeometry(Part.LineSegment(App.Vector(-36, -48, 0), App.Vector(36, -48, 0)), False)
sketch7.addGeometry(Part.ArcOfCircle(Part.Circle(App.Vector(36, -42, 0), App.Vector(0, 0, 1), 6), math.radians(-90), math.radians(0)), False)
sketch7.addGeometry(Part.LineSegment(App.Vector(42, -42, 0), App.Vector(42, 42, 0)), False)
sketch7.addGeometry(Part.ArcOfCircle(Part.Circle(App.Vector(36, 42, 0), App.Vector(0, 0, 1), 6), math.radians(0), math.radians(90)), False)
sketch7.addGeometry(Part.LineSegment(App.Vector(36, 48, 0), App.Vector(-36, 48, 0)), False)
sketch7.addGeometry(Part.ArcOfCircle(Part.Circle(App.Vector(-36, 42, 0), App.Vector(0, 0, 1), 6), math.radians(90), math.radians(180)), False)
sketch7.addGeometry(Part.LineSegment(App.Vector(-42, 42, 0), App.Vector(-42, -42, 0)), False)
sketch7.addGeometry(Part.ArcOfCircle(Part.Circle(App.Vector(-36, -42, 0), App.Vector(0, 0, 1), 6), math.radians(180), math.radians(270)), False)
sketch7.addConstraint(Sketcher.Constraint("Tangent", 0, 2, 1, 1))
sketch7.addConstraint(Sketcher.Constraint("Tangent", 1, 2, 2, 1))
sketch7.addConstraint(Sketcher.Constraint("Tangent", 2, 2, 3, 1))
sketch7.addConstraint(Sketcher.Constraint("Tangent", 3, 2, 4, 1))
sketch7.addConstraint(Sketcher.Constraint("Tangent", 4, 2, 5, 1))
sketch7.addConstraint(Sketcher.Constraint("Tangent", 5, 2, 6, 1))
sketch7.addConstraint(Sketcher.Constraint("Tangent", 6, 2, 7, 1))
sketch7.addConstraint(Sketcher.Constraint("Tangent", 7, 2, 0, 1))
sketch7.addConstraint(Sketcher.Constraint("Horizontal", 0))
sketch7.addConstraint(Sketcher.Constraint("Vertical", 2))
sketch7.addConstraint(Sketcher.Constraint("Horizontal", 4))
sketch7.addConstraint(Sketcher.Constraint("Vertical", 6))
sketch7.addConstraint(Sketcher.Constraint("Equal", 1, 3))
sketch7.addConstraint(Sketcher.Constraint("Equal", 3, 5))
sketch7.addConstraint(Sketcher.Constraint("Equal", 5, 7))
sketch7.addConstraint(Sketcher.Constraint("Symmetric", 1, 3, 5, 3, -1, 1))
sketch7.addConstraint(Sketcher.Constraint("Radius", 1, 6.0))
sketch7.addConstraint(Sketcher.Constraint("DistanceX", 0, 1, 0, 2, 73.0))
sketch7.addConstraint(Sketcher.Constraint("DistanceY", 2, 1, 2, 2, 83.0))
sketch7.setExpression("Constraints[16]", "Params.sketch7_radius")
sketch7.setExpression("Constraints[17]", "Params.sketch7_width")
sketch7.setExpression("Constraints[18]", "Params.sketch7_height")
pocket6 = body.newObject("PartDesign::Pocket", "Pocket005")
pocket6.Profile = sketch7
pocket6.setExpression("Length", "Params.pocket6_length")

sketch8 = body.newObject("Sketcher::SketchObject", "Sketch007")
sketch8.AttachmentSupport = (doc.getObject("XY_Plane"), [""])
sketch8.MapMode = "FlatFace"
sketch8.AttachmentOffset = App.Placement(App.Vector(0, 0, 8), App.Rotation())
sketch8.addGeometry(Part.Circle(App.Vector(-9.5, 0, 0), App.Vector(0, 0, 1), 2.8), False)
sketch8.addGeometry(Part.Circle(App.Vector(9.5, 0, 0), App.Vector(0, 0, 1), 2.8), False)
sketch8.addConstraint(Sketcher.Constraint("Equal", 0, 1))
sketch8.addConstraint(Sketcher.Constraint("Symmetric", 0, 3, 1, 3, -1, 1))
sketch8.addConstraint(Sketcher.Constraint("PointOnObject", 0, 3, -1))
sketch8.addConstraint(Sketcher.Constraint("Diameter", 0, 5.5))
sketch8.addConstraint(Sketcher.Constraint("DistanceX", 0, 3, 1, 3, 19.0))
sketch8.setExpression("Constraints[3]", "Params.sketch8_diameter")
doc.recompute()
hole = body.newObject("PartDesign::Hole", "Hole")
hole.Profile = sketch8
hole.ThreadType = "None"
hole.setExpression("Diameter", "Params.hole_diameter")
hole.DepthType = "ThroughAll"

sketch9 = body.newObject("Sketcher::SketchObject", "Sketch008")
sketch9.AttachmentSupport = (doc.getObject("XY_Plane"), [""])
sketch9.MapMode = "FlatFace"
sketch9.AttachmentOffset = App.Placement(App.Vector(0, 0, 10), App.Rotation())
sketch9.addGeometry(Part.Circle(App.Vector(0, 59.6, 0), App.Vector(0, 0, 1), 2.2), False)
sketch9.addGeometry(Part.Circle(App.Vector(59.5, 0, 0), App.Vector(0, 0, 1), 2.2), False)
sketch9.addGeometry(Part.Circle(App.Vector(0, -59.6, 0), App.Vector(0, 0, 1), 2.2), False)
sketch9.addGeometry(Part.Circle(App.Vector(-59.5, 0, 0), App.Vector(0, 0, 1), 2.2), False)
sketch9.addConstraint(Sketcher.Constraint("Equal", 0, 1))
sketch9.addConstraint(Sketcher.Constraint("Equal", 1, 2))
sketch9.addConstraint(Sketcher.Constraint("Equal", 2, 3))
sketch9.addConstraint(Sketcher.Constraint("Symmetric", 0, 3, 2, 3, -1, 1))
sketch9.addConstraint(Sketcher.Constraint("Symmetric", 1, 3, 3, 3, -1, 1))
sketch9.addConstraint(Sketcher.Constraint("PointOnObject", 0, 3, -2))
sketch9.addConstraint(Sketcher.Constraint("PointOnObject", 1, 3, -1))
sketch9.addConstraint(Sketcher.Constraint("Diameter", 0, 4.4))
sketch9.addConstraint(Sketcher.Constraint("DistanceX", 3, 3, 1, 3, 119.0))
sketch9.addConstraint(Sketcher.Constraint("DistanceY", 2, 3, 0, 3, 119.3))
sketch9.setExpression("Constraints[7]", "Params.sketch9_diameter")
doc.recompute()
hole2 = body.newObject("PartDesign::Hole", "Hole001")
hole2.Profile = sketch9
hole2.ThreadType = "None"
hole2.setExpression("Diameter", "Params.hole2_diameter")
hole2.DepthType = "ThroughAll"
hole2.HoleCutType = "Counterbore"
hole2.setExpression("HoleCutDiameter", "Params.hole2_cbore_diameter")
hole2.setExpression("HoleCutDepth", "Params.hole2_cbore_depth")

sketch10 = body.newObject("Sketcher::SketchObject", "Sketch009")
sketch10.AttachmentSupport = (doc.getObject("XY_Plane"), [""])
sketch10.MapMode = "FlatFace"
sketch10.AttachmentOffset = App.Placement(App.Vector(0, 0, 10), App.Rotation())
sketch10.addGeometry(Part.Circle(App.Vector(-80, 100, 0), App.Vector(0, 0, 1), 1.2), False)
sketch10.addGeometry(Part.Circle(App.Vector(-67.5, 103, 0), App.Vector(0, 0, 1), 1.2), False)
sketch10.addGeometry(Part.Circle(App.Vector(80, 100, 0), App.Vector(0, 0, 1), 1.2), False)
sketch10.addGeometry(Part.Circle(App.Vector(-80, -100, 0), App.Vector(0, 0, 1), 1.2), False)
sketch10.addGeometry(Part.Circle(App.Vector(80, -100, 0), App.Vector(0, 0, 1), 1.2), False)
sketch10.addGeometry(Part.Circle(App.Vector(67.5, -103, 0), App.Vector(0, 0, 1), 1.2), False)
sketch10.addConstraint(Sketcher.Constraint("Equal", 0, 1))
sketch10.addConstraint(Sketcher.Constraint("Equal", 1, 2))
sketch10.addConstraint(Sketcher.Constraint("Equal", 2, 3))
sketch10.addConstraint(Sketcher.Constraint("Equal", 3, 4))
sketch10.addConstraint(Sketcher.Constraint("Equal", 4, 5))
sketch10.addConstraint(Sketcher.Constraint("Symmetric", 2, 3, 3, 3, -1, 1))
sketch10.addConstraint(Sketcher.Constraint("Symmetric", 0, 3, 4, 3, -1, 1))
sketch10.addConstraint(Sketcher.Constraint("Symmetric", 1, 3, 5, 3, -1, 1))
sketch10.addConstraint(Sketcher.Constraint("Symmetric", 0, 3, 2, 3, -2))
sketch10.addConstraint(Sketcher.Constraint("Diameter", 0, 2.5))
sketch10.addConstraint(Sketcher.Constraint("DistanceX", 0, 3, -1, 1, 80.0))
sketch10.addConstraint(Sketcher.Constraint("DistanceY", -1, 1, 0, 3, 100.0))
sketch10.addConstraint(Sketcher.Constraint("DistanceY", -1, 1, 1, 3, 103.0))
sketch10.addConstraint(Sketcher.Constraint("DistanceX", 1, 3, 5, 3, 135.0))
sketch10.setExpression("Constraints[9]", "Params.sketch10_diameter")
doc.recompute()
hole3 = body.newObject("PartDesign::Hole", "Hole002")
hole3.Profile = sketch10
hole3.ThreadType = "None"
hole3.setExpression("Diameter", "Params.hole3_diameter")
hole3.DepthType = "Dimension"
hole3.setExpression("Depth", "Params.hole3_depth")
hole3.DrillPoint = "Angled"
hole3.DrillPointAngle = 118

sketch11 = body.newObject("Sketcher::SketchObject", "Sketch010")
sketch11.AttachmentSupport = (doc.getObject("XY_Plane"), [""])
sketch11.MapMode = "FlatFace"
sketch11.AttachmentOffset = App.Placement(App.Vector(0, 0, 7), App.Rotation())
sketch11.addGeometry(Part.Circle(App.Vector(-92.5, 0, 0), App.Vector(0, 0, 1), 2.2), False)
sketch11.addConstraint(Sketcher.Constraint("PointOnObject", 0, 3, -1))
sketch11.addConstraint(Sketcher.Constraint("Diameter", 0, 4.4))
sketch11.addConstraint(Sketcher.Constraint("DistanceX", 0, 3, -1, 1, 92.5))
sketch11.setExpression("Constraints[1]", "Params.sketch11_diameter")
doc.recompute()
hole4 = body.newObject("PartDesign::Hole", "Hole003")
hole4.Profile = sketch11
hole4.ThreadType = "None"
hole4.setExpression("Diameter", "Params.hole4_diameter")
hole4.DepthType = "Dimension"
hole4.setExpression("Depth", "Params.hole4_depth")
hole4.DrillPoint = "Angled"
hole4.DrillPointAngle = 118

sketch12 = body.newObject("Sketcher::SketchObject", "Sketch011")
sketch12.AttachmentSupport = (doc.getObject("XY_Plane"), [""])
sketch12.MapMode = "FlatFace"
sketch12.addGeometry(Part.Circle(App.Vector(-17.5, 57.5, 0), App.Vector(0, 0, 1), 2.1), False)
sketch12.addGeometry(Part.Circle(App.Vector(17.5, -57.5, 0), App.Vector(0, 0, 1), 2.1), False)
sketch12.addConstraint(Sketcher.Constraint("Equal", 0, 1))
sketch12.addConstraint(Sketcher.Constraint("Symmetric", 0, 3, 1, 3, -1, 1))
sketch12.addConstraint(Sketcher.Constraint("Diameter", 0, 4.2))
sketch12.addConstraint(Sketcher.Constraint("DistanceX", 0, 3, 1, 3, 35.0))
sketch12.addConstraint(Sketcher.Constraint("DistanceY", 1, 3, 0, 3, 115.0))
sketch12.setExpression("Constraints[2]", "Params.sketch12_diameter")
doc.recompute()
hole5 = body.newObject("PartDesign::Hole", "Hole004")
hole5.Profile = sketch12
hole5.ThreadType = "None"
hole5.setExpression("Diameter", "Params.hole5_diameter")
hole5.DepthType = "Dimension"
hole5.setExpression("Depth", "Params.hole5_depth")
hole5.DrillPoint = "Angled"
hole5.DrillPointAngle = 118
hole5.HoleCutType = "Counterbore"
hole5.setExpression("HoleCutDiameter", "Params.hole5_cbore_diameter")
hole5.setExpression("HoleCutDepth", "Params.hole5_cbore_depth")
hole5.Reversed = True
doc.recompute()

chamfer = body.newObject("PartDesign::Chamfer", "Chamfer")
chamfer.Base = (hole5, edges_at(hole5, [
    (-105, 120, 5),
    (105, 120, 5),
    (-105, -120, 5),
    (105, -120, 5),
]))
chamfer.setExpression("Size", "Params.chamfer_size")
doc.recompute()

fillet = body.newObject("PartDesign::Fillet", "Fillet")
fillet.Base = (chamfer, edges_at(chamfer, [
    (-5.5, 58.5, 8.5),
    (5.5, 58.5, 8.5),
    (5.5, -58.5, 8.5),
    (-5.5, -58.5, 8.5),
]))
fillet.setExpression("Radius", "Params.fillet_radius")
doc.recompute()

fillet2 = body.newObject("PartDesign::Fillet", "Fillet001")
fillet2.Base = (fillet, edges_at(fillet, [
    (40.672, 58.5, 8.5),
    (-40.672, 58.5, 8.5),
    (-54, 45.172, 8.5),
    (-54, -45.172, 8.5),
    (-40.672, -58.5, 8.5),
    (40.672, -58.5, 8.5),
    (54, -45.172, 8.5),
    (54, 45.172, 8.5),
]))
fillet2.setExpression("Radius", "Params.fillet2_radius")

doc.recompute()
